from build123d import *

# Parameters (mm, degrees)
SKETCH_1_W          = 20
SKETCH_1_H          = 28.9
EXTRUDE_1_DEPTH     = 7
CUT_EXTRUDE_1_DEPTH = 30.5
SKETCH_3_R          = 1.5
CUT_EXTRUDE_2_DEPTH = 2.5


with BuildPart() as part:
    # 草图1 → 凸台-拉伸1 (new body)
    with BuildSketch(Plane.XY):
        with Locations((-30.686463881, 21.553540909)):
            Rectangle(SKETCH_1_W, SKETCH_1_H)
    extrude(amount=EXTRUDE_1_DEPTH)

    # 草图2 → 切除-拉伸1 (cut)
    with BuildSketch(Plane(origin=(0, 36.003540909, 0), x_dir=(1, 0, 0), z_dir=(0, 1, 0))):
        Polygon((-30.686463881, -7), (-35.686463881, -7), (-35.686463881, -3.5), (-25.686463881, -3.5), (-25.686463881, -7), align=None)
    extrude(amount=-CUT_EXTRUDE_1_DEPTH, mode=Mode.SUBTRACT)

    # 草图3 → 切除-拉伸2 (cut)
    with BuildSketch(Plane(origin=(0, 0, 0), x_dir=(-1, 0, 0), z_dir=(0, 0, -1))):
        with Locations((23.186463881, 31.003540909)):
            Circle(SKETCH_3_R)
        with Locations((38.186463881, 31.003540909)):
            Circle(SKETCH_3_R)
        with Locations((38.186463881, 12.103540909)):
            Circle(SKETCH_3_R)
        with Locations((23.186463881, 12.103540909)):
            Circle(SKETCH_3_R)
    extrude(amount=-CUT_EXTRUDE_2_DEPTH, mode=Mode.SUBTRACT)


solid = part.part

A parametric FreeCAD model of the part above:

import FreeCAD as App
import Part
import Sketcher
from FreeCAD import Vector


def add_polygon(sketch, points):
    """Adds a closed chain of lines whose ends are joined by coincident constraints."""
    first, n = sketch.GeometryCount, len(points)
    for a, b in zip(points, points[1:] + points[:1]):
        sketch.addGeometry(Part.LineSegment(App.Vector(*a, 0), App.Vector(*b, 0)), False)
    for i in range(n):
        sketch.addConstraint(Sketcher.Constraint("Coincident", first + i, 2, first + (i + 1) % n, 1))

doc = App.newDocument("Part")
params = doc.addObject("Spreadsheet::Sheet", "Params")
for row, (alias, value) in enumerate([
    ("sketch1_width", "20 mm"),
    ("sketch1_height", "28.9 mm"),
    ("pad1_length", "7 mm"),
    ("sketch2_width", "10 mm"),
    ("sketch2_height", "3.5 mm"),
    ("pocket1_length", "30.5 mm"),
    ("sketch3_diameter", "3 mm"),
    ("pocket2_length", "2.5 mm"),
], start=1):
    params.set(f"A{row}", alias)
    params.set(f"B{row}", "=" + value)
    params.setAlias(f"B{row}", alias)

body = doc.addObject("PartDesign::Body", "Body")

# Sketch on XY plane
sketch1 = doc.addObject("Sketcher::SketchObject", "Sketch")
body.addObject(sketch1)
sketch1.AttachmentSupport = (doc.XY_Plane, [""])
sketch1.MapMode = "FlatFace"
add_polygon(sketch1, [(-41, 36), (-41, 7), (-21, 7), (-21, 36)])  # lines 0-3
sketch1.addConstraint(Sketcher.Constraint("Vertical", 0))
sketch1.addConstraint(Sketcher.Constraint("Horizontal", 1))
sketch1.addConstraint(Sketcher.Constraint("Vertical", 2))
sketch1.addConstraint(Sketcher.Constraint("Horizontal", 3))
sketch1.addConstraint(Sketcher.Constraint("DistanceX", 1, 1, 1, 2, 20.0))
sketch1.addConstraint(Sketcher.Constraint("DistanceY", 0, 2, 0, 1, 28.9))
sketch1.addConstraint(Sketcher.Constraint("DistanceY", -1, 1, 0, 2, 7.103541))
sketch1.addConstraint(Sketcher.Constraint("DistanceX", 0, 2, -1, 1, 40.686464))
sketch1.setExpression("Constraints[8]", "Params.sketch1_width")
sketch1.setExpression("Constraints[9]", "Params.sketch1_height")
pad1 = doc.addObject("PartDesign::Pad", "Pad")
body.addObject(pad1)
pad1.Profile = sketch1
pad1.setExpression("Length", "Params.pad1_length")

# Sketch on XZ plane
sketch2 = doc.addObject("Sketcher::SketchObject", "Sketch001")
body.addObject(sketch2)
sketch2.AttachmentSupport = (doc.XZ_Plane, [""])
sketch2.MapMode = "FlatFace"
sketch2.AttachmentOffset = App.Placement(Vector(0, 0, -36.003541), App.Rotation())
add_polygon(sketch2, [(-35.7, 7), (-25.7, 7), (-25.7, 3.5), (-35.7, 3.5)])  # lines 0-3
sketch2.addConstraint(Sketcher.Constraint("Horizontal", 0))
sketch2.addConstraint(Sketcher.Constraint("Vertical", 1))
sketch2.addConstraint(Sketcher.Constraint("Horizontal", 2))
sketch2.addConstraint(Sketcher.Constraint("Vertical", 3))
sketch2.addConstraint(Sketcher.Constraint("DistanceX", 0, 1, 0, 2, 10.0))
sketch2.addConstraint(Sketcher.Constraint("DistanceY", 1, 2, 1, 1, 3.5))
sketch2.addConstraint(Sketcher.Constraint("DistanceY", -1, 1, 0, 2, 7.0))
sketch2.addConstraint(Sketcher.Constraint("DistanceX", 0, 2, -1, 1, 25.686464))
sketch2.setExpression("Constraints[8]", "Params.sketch2_width")
sketch2.setExpression("Constraints[9]", "Params.sketch2_height")
pocket1 = doc.addObject("PartDesign::Pocket", "Pocket")
body.addObject(pocket1)
pocket1.Profile = sketch2
pocket1.setExpression("Length", "Params.pocket1_length")
pocket1.Reversed = True

# Sketch on XY plane
sketch3 = doc.addObject("Sketcher::SketchObject", "Sketch002")
body.addObject(sketch3)
sketch3.AttachmentSupport = (doc.XY_Plane, [""])
sketch3.MapMode = "FlatFace"
sketch3.addGeometry(Part.Circle(Vector(-23.2, 31, 0), Vector(0, 0, 1), 1.5), False)
sketch3.addGeometry(Part.Circle(Vector(-38.2, 31, 0), Vector(0, 0, 1), 1.5), False)
sketch3.addGeometry(Part.Circle(Vector(-38.2, 12.1, 0), Vector(0, 0, 1), 1.5), False)
sketch3.addGeometry(Part.Circle(Vector(-23.2, 12.1, 0), Vector(0, 0, 1), 1.5), False)
sketch3.addConstraint(Sketcher.Constraint("Equal", 0, 1))
sketch3.addConstraint(Sketcher.Constraint("Equal", 1, 2))
sketch3.addConstraint(Sketcher.Constraint("Equal", 2, 3))
sketch3.addConstraint(Sketcher.Constraint("Horizontal", 0, 3, 1, 3))
sketch3.addConstraint(Sketcher.Constraint("Horizontal", 2, 3, 3, 3))
sketch3.addConstraint(Sketcher.Constraint("Vertical", 1, 3, 2, 3))
sketch3.addConstraint(Sketcher.Constraint("Vertical", 0, 3, 3, 3))
sketch3.addConstraint(Sketcher.Constraint("Diameter", 0, 3.0))
sketch3.addConstraint(Sketcher.Constraint("DistanceX", 1, 3, 0, 3, 15.0))
sketch3.addConstraint(Sketcher.Constraint("DistanceY", 2, 3, 1, 3, 18.9))
sketch3.addConstraint(Sketcher.Constraint("DistanceY", -1, 1, 0, 3, 31.003541))
sketch3.addConstraint(Sketcher.Constraint("DistanceX", 0, 3, -1, 1, 23.186464))
sketch3.setExpression("Constraints[7]", "Params.sketch3_diameter")
pocket2 = doc.addObject("PartDesign::Pocket", "Pocket001")
body.addObject(pocket2)
pocket2.Profile = sketch3
pocket2.setExpression("Length", "Params.pocket2_length")
pocket2.Reversed = True

doc.recompute()
